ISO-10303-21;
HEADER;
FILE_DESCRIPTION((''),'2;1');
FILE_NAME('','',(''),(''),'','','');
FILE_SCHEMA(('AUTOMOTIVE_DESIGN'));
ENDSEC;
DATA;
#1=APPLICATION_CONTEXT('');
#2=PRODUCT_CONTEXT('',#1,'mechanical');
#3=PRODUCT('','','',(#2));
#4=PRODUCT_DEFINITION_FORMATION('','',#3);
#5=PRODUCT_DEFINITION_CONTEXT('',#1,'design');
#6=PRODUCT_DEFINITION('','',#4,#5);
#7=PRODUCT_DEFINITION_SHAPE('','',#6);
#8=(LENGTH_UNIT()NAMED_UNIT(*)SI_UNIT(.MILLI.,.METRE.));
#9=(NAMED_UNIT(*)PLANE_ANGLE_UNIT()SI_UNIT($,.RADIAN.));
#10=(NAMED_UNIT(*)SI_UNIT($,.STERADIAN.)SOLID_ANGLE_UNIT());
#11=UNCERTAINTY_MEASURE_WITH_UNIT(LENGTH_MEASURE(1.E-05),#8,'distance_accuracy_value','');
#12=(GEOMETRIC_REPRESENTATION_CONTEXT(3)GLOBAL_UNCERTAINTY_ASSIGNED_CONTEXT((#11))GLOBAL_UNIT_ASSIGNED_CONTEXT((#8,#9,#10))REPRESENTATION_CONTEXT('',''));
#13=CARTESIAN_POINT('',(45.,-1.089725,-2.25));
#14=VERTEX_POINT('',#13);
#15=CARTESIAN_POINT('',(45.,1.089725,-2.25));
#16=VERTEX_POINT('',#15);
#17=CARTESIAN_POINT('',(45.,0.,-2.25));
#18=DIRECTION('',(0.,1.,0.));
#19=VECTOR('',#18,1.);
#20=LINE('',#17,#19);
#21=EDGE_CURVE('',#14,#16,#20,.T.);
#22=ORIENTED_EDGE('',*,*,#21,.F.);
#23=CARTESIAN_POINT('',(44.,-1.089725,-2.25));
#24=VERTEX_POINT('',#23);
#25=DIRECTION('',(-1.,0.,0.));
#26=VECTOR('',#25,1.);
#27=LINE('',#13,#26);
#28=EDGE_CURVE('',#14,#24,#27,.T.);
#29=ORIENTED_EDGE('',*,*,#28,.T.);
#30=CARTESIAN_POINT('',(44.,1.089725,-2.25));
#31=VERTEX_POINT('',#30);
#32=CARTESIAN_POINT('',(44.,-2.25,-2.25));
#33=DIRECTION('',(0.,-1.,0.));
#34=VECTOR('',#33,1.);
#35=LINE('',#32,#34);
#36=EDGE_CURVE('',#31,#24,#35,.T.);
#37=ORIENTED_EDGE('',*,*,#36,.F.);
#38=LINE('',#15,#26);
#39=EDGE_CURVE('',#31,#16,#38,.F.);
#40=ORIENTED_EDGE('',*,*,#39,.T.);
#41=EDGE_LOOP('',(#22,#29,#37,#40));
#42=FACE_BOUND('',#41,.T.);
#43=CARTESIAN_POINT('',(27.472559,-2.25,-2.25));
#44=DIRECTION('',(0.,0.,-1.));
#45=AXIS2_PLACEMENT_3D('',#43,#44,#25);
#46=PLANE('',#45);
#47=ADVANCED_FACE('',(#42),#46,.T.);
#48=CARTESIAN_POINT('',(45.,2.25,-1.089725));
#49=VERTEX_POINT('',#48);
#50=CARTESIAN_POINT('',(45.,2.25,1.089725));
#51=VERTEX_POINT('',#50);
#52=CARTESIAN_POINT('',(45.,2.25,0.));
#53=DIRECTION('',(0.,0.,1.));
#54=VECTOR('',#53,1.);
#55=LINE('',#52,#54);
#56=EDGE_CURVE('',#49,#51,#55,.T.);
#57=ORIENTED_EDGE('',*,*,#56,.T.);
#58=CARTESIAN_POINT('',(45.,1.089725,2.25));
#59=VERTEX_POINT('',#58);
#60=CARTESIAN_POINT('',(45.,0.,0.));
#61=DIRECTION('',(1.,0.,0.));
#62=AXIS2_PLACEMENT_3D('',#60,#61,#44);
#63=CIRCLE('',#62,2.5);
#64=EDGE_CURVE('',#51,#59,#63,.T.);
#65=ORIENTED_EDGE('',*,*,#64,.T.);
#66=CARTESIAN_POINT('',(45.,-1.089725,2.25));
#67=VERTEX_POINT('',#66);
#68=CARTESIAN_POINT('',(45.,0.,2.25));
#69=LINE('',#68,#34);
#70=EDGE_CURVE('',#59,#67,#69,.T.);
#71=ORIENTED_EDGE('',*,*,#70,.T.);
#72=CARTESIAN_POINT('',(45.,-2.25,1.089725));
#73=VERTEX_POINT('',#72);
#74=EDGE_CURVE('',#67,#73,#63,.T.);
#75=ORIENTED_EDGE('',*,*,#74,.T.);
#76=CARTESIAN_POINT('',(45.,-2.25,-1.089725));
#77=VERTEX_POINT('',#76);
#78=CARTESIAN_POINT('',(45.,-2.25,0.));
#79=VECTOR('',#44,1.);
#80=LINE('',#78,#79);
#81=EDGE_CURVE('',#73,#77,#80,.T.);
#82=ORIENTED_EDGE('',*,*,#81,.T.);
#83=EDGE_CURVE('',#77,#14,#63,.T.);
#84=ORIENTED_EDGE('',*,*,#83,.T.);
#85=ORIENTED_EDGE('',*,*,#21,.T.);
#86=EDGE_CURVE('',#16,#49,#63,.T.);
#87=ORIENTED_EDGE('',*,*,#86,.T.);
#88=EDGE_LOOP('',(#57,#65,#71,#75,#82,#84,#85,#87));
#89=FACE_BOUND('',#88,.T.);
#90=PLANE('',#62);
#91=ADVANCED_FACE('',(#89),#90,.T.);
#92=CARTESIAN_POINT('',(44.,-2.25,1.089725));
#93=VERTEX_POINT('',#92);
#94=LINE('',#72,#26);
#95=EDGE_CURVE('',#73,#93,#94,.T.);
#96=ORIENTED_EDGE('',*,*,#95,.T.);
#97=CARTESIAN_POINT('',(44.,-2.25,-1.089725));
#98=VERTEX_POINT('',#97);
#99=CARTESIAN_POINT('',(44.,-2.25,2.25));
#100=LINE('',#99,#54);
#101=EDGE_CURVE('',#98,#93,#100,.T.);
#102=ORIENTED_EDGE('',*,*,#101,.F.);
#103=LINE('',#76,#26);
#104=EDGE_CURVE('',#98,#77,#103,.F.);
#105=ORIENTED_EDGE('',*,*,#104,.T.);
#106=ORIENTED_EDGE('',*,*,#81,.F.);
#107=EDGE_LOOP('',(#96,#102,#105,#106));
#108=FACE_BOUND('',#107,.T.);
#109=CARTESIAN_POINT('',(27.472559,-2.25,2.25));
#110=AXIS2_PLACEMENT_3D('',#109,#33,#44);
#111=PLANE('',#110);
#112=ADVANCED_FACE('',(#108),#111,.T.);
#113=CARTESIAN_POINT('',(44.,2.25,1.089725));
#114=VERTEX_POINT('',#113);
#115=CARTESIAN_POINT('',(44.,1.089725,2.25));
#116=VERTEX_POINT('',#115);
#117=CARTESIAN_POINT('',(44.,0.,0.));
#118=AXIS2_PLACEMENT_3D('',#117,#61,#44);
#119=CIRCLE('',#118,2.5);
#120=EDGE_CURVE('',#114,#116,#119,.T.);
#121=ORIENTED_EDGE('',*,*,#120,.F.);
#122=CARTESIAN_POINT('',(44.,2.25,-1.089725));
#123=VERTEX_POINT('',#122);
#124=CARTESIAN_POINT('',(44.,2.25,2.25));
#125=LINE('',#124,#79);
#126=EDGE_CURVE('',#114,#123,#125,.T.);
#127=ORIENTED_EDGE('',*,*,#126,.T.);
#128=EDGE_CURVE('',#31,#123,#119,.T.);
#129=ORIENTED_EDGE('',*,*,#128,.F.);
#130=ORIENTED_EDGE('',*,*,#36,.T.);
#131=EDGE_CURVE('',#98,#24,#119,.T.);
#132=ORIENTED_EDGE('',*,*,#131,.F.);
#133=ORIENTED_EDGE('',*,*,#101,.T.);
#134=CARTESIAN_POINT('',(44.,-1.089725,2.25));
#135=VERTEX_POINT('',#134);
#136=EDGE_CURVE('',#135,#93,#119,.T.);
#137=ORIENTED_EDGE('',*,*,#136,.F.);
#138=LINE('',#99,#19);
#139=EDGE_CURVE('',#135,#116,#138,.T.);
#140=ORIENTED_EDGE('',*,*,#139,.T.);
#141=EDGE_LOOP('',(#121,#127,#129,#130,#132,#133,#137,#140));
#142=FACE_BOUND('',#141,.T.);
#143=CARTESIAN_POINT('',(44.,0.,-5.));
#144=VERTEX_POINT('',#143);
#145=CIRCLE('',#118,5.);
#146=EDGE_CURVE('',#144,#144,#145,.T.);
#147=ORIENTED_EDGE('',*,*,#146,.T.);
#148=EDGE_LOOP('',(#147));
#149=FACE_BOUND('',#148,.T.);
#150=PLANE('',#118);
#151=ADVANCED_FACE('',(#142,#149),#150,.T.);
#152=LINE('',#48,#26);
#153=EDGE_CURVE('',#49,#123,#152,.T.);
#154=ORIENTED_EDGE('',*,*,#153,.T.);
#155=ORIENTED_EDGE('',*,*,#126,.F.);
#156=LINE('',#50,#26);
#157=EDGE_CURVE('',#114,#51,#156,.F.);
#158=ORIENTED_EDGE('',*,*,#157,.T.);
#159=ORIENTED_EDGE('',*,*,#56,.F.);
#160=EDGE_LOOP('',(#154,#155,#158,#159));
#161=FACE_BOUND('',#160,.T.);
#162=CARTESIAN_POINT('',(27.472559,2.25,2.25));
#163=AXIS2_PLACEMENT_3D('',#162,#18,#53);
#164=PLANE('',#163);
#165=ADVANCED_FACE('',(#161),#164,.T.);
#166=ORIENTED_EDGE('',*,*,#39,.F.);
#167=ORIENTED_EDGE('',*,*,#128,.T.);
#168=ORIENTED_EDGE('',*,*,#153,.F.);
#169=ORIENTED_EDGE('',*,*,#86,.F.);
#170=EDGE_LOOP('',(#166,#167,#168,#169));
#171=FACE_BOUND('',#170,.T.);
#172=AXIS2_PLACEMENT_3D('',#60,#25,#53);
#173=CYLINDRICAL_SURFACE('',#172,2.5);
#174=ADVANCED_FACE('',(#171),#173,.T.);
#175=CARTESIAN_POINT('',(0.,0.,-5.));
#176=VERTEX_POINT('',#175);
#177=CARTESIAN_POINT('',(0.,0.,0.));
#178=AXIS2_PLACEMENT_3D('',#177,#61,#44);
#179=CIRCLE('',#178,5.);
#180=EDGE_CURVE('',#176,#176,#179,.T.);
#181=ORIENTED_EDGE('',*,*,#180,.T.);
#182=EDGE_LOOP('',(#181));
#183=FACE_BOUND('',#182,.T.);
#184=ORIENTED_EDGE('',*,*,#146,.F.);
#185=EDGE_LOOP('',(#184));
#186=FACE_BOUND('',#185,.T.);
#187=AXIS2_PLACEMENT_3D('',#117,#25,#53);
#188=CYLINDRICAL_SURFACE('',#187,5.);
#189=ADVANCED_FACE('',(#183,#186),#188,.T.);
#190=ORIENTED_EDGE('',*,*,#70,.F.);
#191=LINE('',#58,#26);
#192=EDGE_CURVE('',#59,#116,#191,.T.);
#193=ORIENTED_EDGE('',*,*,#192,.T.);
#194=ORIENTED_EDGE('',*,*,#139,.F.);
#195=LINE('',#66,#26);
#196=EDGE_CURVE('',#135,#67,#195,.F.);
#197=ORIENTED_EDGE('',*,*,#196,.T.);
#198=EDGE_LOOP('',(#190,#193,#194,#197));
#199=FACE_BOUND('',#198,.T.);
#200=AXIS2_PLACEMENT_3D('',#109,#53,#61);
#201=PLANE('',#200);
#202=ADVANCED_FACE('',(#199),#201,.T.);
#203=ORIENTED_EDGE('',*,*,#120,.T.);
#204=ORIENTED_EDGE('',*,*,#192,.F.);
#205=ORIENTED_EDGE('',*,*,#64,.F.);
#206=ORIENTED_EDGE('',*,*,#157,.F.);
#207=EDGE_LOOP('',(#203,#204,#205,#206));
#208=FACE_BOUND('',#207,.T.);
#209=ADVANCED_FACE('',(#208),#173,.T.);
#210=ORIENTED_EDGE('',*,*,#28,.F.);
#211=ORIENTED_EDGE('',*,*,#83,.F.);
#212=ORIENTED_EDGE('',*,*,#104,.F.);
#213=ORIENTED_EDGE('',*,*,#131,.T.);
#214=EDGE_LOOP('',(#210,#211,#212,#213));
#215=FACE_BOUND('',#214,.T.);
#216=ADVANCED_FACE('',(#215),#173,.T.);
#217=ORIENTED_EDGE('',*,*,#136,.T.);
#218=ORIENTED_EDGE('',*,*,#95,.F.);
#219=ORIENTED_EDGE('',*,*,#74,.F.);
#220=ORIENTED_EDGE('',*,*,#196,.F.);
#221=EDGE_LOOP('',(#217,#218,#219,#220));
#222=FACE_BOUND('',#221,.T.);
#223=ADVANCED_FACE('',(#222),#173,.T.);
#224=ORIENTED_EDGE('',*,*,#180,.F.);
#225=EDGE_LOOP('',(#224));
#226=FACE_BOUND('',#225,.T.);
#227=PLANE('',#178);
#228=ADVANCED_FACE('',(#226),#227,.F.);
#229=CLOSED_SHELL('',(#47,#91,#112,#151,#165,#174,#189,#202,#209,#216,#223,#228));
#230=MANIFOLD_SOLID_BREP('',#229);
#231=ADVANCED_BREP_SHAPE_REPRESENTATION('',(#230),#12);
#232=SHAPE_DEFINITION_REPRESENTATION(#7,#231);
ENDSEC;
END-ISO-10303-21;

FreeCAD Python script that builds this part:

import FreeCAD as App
import Part
import Sketcher

V = App.Vector


def add_polygon(sketch, points):
    """Adds a closed chain of lines whose ends are joined by coincident constraints."""
    first, n = sketch.GeometryCount, len(points)
    for a, b in zip(points, points[1:] + points[:1]):
        sketch.addGeometry(Part.LineSegment(App.Vector(*a, 0), App.Vector(*b, 0)), False)
    for i in range(n):
        sketch.addConstraint(Sketcher.Constraint("Coincident", first + i, 2, first + (i + 1) % n, 1))

doc = App.newDocument("Part")
params = doc.addObject("Spreadsheet::Sheet", "Params")
for row, (alias, value) in enumerate([
    ("sketch1_diameter", "10 mm"),
    ("pad1_length", "44 mm"),
    ("sketch2_diameter", "5 mm"),
    ("pad2_length", "1 mm"),
    ("sketch3_width", "4.5 mm"),
    ("pocket1_length", "1 mm"),
], start=1):
    params.set(f"A{row}", alias)
    params.set(f"B{row}", "=" + value)
    params.setAlias(f"B{row}", alias)

body = doc.addObject("PartDesign::Body", "Body")

# Sketch on YZ plane
sketch1 = doc.addObject("Sketcher::SketchObject", "Sketch")
body.addObject(sketch1)
sketch1.AttachmentSupport = (doc.YZ_Plane, [""])
sketch1.MapMode = "FlatFace"
sketch1.addGeometry(Part.Circle(V(0, 0, 0), V(0, 0, 1), 5), False)
sketch1.addConstraint([
    Sketcher.Constraint("Coincident", 0, 3, -1, 1),
    Sketcher.Constraint("Diameter", 0, 10.0),
])
sketch1.setExpression("Constraints[1]", "Params.sketch1_diameter")
pad1 = doc.addObject("PartDesign::Pad", "Pad")
body.addObject(pad1)
pad1.Profile = sketch1
pad1.setExpression("Length", "Params.pad1_length")

# Sketch on YZ plane
sketch2 = doc.addObject("Sketcher::SketchObject", "Sketch001")
body.addObject(sketch2)
sketch2.AttachmentSupport = (doc.YZ_Plane, [""])
sketch2.MapMode = "FlatFace"
sketch2.AttachmentOffset = App.Placement(V(0, 0, 44), App.Rotation())
sketch2.addGeometry(Part.Circle(V(0, 0, 0), V(0, 0, 1), 2.5), False)
sketch2.addConstraint([
    Sketcher.Constraint("Coincident", 0, 3, -1, 1),
    Sketcher.Constraint("Diameter", 0, 5.0),
])
sketch2.setExpression("Constraints[1]", "Params.sketch2_diameter")
pad2 = doc.addObject("PartDesign::Pad", "Pad001")
body.addObject(pad2)
pad2.Profile = sketch2
pad2.setExpression("Length", "Params.pad2_length")

# Sketch on YZ plane
sketch3 = doc.addObject("Sketcher::SketchObject", "Sketch002")
body.addObject(sketch3)
sketch3.AttachmentSupport = (doc.YZ_Plane, [""])
sketch3.MapMode = "FlatFace"
sketch3.AttachmentOffset = App.Placement(V(0, 0, 45), App.Rotation())
add_polygon(sketch3, [(10.7, 10.7), (-10.7, 10.7), (-10.7, -10.7), (10.7, -10.7)])  # lines 0-3
add_polygon(sketch3, [(-2.2, -2.2), (-2.2, 2.2), (2.2, 2.2), (2.2, -2.2)])  # lines 4-7
sketch3.addConstraint([
    Sketcher.Constraint("Horizontal", 0),
    Sketcher.Constraint("Vertical", 1),
    Sketcher.Constraint("Horizontal", 2),
    Sketcher.Constraint("Vertical", 3),
    Sketcher.Constraint("Vertical", 4),
    Sketcher.Constraint("Horizontal", 5),
    Sketcher.Constraint("Vertical", 6),
    Sketcher.Constraint("Horizontal", 7),
    Sketcher.Constraint("Symmetric", 0, 2, 2, 2, -1, 1),
    Sketcher.Constraint("Symmetric", 4, 2, 6, 2, -1, 1),
    Sketcher.Constraint("Equal", 2, 1),
    Sketcher.Constraint("Equal", 7, 4),
    Sketcher.Constraint("DistanceX", 5, 1, 5, 2, 4.5),
    Sketcher.Constraint("DistanceX", 0, 2, 0, 1, 21.434),
])
sketch3.setExpression("Constraints[20]", "Params.sketch3_width")
pocket1 = doc.addObject("PartDesign::Pocket", "Pocket")
body.addObject(pocket1)
pocket1.Profile = sketch3
pocket1.setExpression("Length", "Params.pocket1_length")

doc.recompute()
